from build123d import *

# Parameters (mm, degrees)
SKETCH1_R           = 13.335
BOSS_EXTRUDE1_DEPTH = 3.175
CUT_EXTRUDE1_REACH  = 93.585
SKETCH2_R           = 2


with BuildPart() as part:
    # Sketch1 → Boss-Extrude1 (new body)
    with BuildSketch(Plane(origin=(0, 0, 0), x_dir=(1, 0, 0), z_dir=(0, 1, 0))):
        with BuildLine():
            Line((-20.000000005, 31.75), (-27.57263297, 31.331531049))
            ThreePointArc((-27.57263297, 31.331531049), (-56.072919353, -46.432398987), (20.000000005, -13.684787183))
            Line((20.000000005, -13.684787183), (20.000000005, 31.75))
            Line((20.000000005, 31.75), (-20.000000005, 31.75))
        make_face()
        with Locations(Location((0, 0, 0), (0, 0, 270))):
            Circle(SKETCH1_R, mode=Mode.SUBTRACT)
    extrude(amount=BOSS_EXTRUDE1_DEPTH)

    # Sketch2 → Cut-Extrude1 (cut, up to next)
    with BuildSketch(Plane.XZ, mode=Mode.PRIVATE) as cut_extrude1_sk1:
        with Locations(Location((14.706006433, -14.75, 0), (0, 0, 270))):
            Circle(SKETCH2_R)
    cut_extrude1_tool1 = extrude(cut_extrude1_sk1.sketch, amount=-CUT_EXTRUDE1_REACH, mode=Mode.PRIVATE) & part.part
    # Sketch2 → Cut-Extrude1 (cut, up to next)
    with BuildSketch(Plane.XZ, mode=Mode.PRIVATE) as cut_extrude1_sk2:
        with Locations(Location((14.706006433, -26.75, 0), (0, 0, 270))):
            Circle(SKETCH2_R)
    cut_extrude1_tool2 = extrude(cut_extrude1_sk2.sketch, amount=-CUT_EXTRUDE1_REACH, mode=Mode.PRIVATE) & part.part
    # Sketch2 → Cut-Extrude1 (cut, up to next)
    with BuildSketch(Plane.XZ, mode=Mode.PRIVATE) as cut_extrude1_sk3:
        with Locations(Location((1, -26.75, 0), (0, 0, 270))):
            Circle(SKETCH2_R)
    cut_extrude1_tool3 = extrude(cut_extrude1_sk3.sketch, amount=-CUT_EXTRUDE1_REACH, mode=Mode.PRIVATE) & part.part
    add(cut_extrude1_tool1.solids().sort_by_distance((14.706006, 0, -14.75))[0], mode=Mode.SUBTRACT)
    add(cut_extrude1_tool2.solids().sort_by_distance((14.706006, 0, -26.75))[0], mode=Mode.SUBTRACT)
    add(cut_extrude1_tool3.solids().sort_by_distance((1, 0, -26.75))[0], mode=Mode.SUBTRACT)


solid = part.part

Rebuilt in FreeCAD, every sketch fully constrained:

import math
import FreeCAD as App
import Part
import Sketcher

V = App.Vector
Q = App.Units.Quantity

doc = App.newDocument("Part")
body = doc.addObject("PartDesign::Body", "Body")

# Sketch on XZ plane
sketch1 = doc.addObject("Sketcher::SketchObject", "Sketch")
body.addObject(sketch1)
sketch1.AttachmentSupport = (doc.XZ_Plane, [""])
sketch1.MapMode = "FlatFace"
sketch1.addGeometry(Part.LineSegment(V(-20, -31.75, 0), V(-27.572633, -31.331531, 0)), False)
sketch1.addGeometry(Part.ArcOfCircle(Part.Circle(V(-25.085, 13.684787, 0), V(0, 0, 1), 45.085), math.radians(0), math.radians(266.837013)), False)
sketch1.addGeometry(Part.LineSegment(V(20, 13.684787, 0), V(20, -31.75, 0)), False)
sketch1.addGeometry(Part.LineSegment(V(20, -31.75, 0), V(-20, -31.75, 0)), False)
sketch1.addGeometry(Part.Circle(V(0, 0, 0), V(0, 0, 1), 13.335), False)
sketch1.addConstraint(Sketcher.Constraint("Tangent", 0, 2, 1, 2))
sketch1.addConstraint(Sketcher.Constraint("Tangent", 1, 1, 2, 1))
sketch1.addConstraint(Sketcher.Constraint("Coincident", 2, 2, 3, 1))
sketch1.addConstraint(Sketcher.Constraint("Coincident", 3, 2, 0, 1))
sketch1.addConstraint(Sketcher.Constraint("Vertical", 2))
sketch1.addConstraint(Sketcher.Constraint("Horizontal", 3))
sketch1.addConstraint(Sketcher.Constraint("Coincident", 4, 3, -1, 1))
sketch1.addConstraint(Sketcher.Constraint("Diameter", 4, Q("1.05 in")))
sketch1.addConstraint(Sketcher.Constraint("Radius", 1, Q("1.775 in")))
sketch1.addConstraint(Sketcher.Constraint("DistanceY", 2, 2, -1, 1, Q("1.25 in")))
sketch1.addConstraint(Sketcher.Constraint("DistanceX", 3, 2, 3, 1, Q("40 mm")))
sketch1.addConstraint(Sketcher.Constraint("DistanceX", 1, 3, -1, 1, Q("25.085 mm")))
sketch1.addConstraint(Sketcher.Constraint("DistanceY", 2, 2, 2, 1, Q("45.434787 mm")))
pad1 = doc.addObject("PartDesign::Pad", "Pad")
body.addObject(pad1)
pad1.Profile = sketch1
pad1.Length = Q("0.125 in")
pad1.Reversed = True

# Sketch on XZ plane
sketch2 = doc.addObject("Sketcher::SketchObject", "Sketch001")
body.addObject(sketch2)
sketch2.AttachmentSupport = (doc.XZ_Plane, [""])
sketch2.MapMode = "FlatFace"
sketch2.addGeometry(Part.Circle(V(14.706006, -14.75, 0), V(0, 0, 1), 2), False)
sketch2.addConstraint(Sketcher.Constraint("Diameter", 0, Q("4 mm")))
sketch2.addConstraint(Sketcher.Constraint("DistanceY", 0, 3, -1, 1, Q("14.75 mm")))
sketch2.addConstraint(Sketcher.Constraint("DistanceX", -1, 1, 0, 3, Q("14.706006 mm")))
pocket1 = doc.addObject("PartDesign::Pocket", "Pocket")
body.addObject(pocket1)
pocket1.Profile = sketch2
pocket1.Type = "UpToFirst"

# Sketch on XZ plane
sketch3 = doc.addObject("Sketcher::SketchObject", "Sketch002")
body.addObject(sketch3)
sketch3.AttachmentSupport = (doc.XZ_Plane, [""])
sketch3.MapMode = "FlatFace"
sketch3.addGeometry(Part.Circle(V(14.706006, -26.75, 0), V(0, 0, 1), 2), False)
sketch3.addConstraint(Sketcher.Constraint("Diameter", 0, Q("4 mm")))
sketch3.addConstraint(Sketcher.Constraint("DistanceY", 0, 3, -1, 1, Q("26.75 mm")))
sketch3.addConstraint(Sketcher.Constraint("DistanceX", -1, 1, 0, 3, Q("14.706006 mm")))
pocket2 = doc.addObject("PartDesign::Pocket", "Pocket001")
body.addObject(pocket2)
pocket2.Profile = sketch3
pocket2.Type = "UpToFirst"

# Sketch on XZ plane
sketch4 = doc.addObject("Sketcher::SketchObject", "Sketch003")
body.addObject(sketch4)
sketch4.AttachmentSupport = (doc.XZ_Plane, [""])
sketch4.MapMode = "FlatFace"
sketch4.addGeometry(Part.Circle(V(1, -26.75, 0), V(0, 0, 1), 2), False)
sketch4.addConstraint(Sketcher.Constraint("Diameter", 0, Q("4 mm")))
sketch4.addConstraint(Sketcher.Constraint("DistanceX", -1, 1, 0, 3, Q("1 mm")))
sketch4.addConstraint(Sketcher.Constraint("DistanceY", 0, 3, -1, 1, Q("26.75 mm")))
pocket3 = doc.addObject("PartDesign::Pocket", "Pocket002")
body.addObject(pocket3)
pocket3.Profile = sketch4
pocket3.Type = "UpToFirst"

doc.recompute()
